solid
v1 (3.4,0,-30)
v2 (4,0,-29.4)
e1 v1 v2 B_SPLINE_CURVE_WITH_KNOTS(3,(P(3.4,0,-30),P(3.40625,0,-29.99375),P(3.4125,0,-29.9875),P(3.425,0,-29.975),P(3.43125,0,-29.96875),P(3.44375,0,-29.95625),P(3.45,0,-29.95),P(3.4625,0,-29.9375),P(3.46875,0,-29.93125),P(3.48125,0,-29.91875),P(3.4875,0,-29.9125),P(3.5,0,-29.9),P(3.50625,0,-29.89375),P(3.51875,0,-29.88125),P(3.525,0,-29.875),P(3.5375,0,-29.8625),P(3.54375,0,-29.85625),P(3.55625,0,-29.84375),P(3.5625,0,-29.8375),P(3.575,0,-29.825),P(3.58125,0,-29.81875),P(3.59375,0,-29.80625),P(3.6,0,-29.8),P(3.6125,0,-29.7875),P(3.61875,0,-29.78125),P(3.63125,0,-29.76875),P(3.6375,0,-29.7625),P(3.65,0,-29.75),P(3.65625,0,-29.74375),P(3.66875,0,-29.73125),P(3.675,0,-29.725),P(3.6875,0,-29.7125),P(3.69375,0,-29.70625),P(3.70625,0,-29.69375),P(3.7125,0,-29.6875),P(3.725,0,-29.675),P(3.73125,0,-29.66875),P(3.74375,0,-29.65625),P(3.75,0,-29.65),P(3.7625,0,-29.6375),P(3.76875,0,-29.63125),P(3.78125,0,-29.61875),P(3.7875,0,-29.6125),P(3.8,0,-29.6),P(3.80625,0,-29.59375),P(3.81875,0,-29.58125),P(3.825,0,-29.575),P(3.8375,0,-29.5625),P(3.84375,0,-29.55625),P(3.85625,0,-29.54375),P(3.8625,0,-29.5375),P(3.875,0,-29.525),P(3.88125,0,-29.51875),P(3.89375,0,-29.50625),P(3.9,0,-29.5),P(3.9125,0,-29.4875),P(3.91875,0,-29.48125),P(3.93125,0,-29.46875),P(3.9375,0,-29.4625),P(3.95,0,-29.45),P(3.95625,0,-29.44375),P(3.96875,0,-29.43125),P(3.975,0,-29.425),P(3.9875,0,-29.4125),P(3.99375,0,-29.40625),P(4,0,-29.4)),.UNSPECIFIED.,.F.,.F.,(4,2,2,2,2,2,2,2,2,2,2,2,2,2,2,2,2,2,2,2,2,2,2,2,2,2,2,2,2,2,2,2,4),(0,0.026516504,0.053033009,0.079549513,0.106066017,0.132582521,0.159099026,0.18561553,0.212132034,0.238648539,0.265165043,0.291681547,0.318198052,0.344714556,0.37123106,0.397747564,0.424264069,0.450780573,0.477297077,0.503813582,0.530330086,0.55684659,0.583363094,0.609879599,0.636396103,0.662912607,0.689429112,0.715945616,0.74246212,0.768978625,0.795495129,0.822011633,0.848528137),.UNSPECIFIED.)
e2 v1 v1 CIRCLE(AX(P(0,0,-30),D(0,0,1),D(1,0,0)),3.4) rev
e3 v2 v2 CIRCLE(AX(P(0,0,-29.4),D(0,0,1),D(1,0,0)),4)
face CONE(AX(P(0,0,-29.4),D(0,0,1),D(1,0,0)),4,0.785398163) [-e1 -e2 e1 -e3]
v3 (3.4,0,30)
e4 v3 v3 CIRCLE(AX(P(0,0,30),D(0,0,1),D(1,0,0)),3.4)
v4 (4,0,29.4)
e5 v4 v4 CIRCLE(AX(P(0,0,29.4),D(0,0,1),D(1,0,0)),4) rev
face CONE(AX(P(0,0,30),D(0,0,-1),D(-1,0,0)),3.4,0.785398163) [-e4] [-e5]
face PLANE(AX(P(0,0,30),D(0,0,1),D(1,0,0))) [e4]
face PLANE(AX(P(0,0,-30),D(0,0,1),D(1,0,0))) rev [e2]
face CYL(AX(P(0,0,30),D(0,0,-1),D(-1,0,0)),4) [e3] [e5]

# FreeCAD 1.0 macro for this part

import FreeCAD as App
import Part
import Sketcher
from FreeCAD import Vector
Q = App.Units.Quantity


def edges_at(feature, points):
    """Names of the edges that pass closest to the given points."""
    edges = feature.Shape.Edges
    near = lambda p: min(range(len(edges)), key=lambda i: edges[i].distToShape(Part.Vertex(*p))[0])
    return sorted({f"Edge{near(p) + 1}" for p in points})

doc = App.newDocument("Part")
params = doc.addObject("Spreadsheet::Sheet", "Params")
for row, (alias, value) in enumerate([
    ("sketch1_diameter", "8 mm"),
    ("pad1_length", "30 mm"),
    ("pad1_length2", "30 mm"),
    ("chamfer_size", "0.6 mm"),
], start=1):
    params.set(f"A{row}", alias)
    params.set(f"B{row}", "=" + value)
    params.setAlias(f"B{row}", alias)

body = doc.addObject("PartDesign::Body", "Body")

sketch1 = body.newObject("Sketcher::SketchObject", "Sketch")
sketch1.AttachmentSupport = (doc.getObject("XY_Plane"), [""])
sketch1.MapMode = "FlatFace"
sketch1.addGeometry(Part.Circle(Vector(0, 0, 0), Vector(0, 0, 1), 4), False)
sketch1.addConstraint(Sketcher.Constraint("Coincident", 0, 3, -1, 1))
sketch1.addConstraint(Sketcher.Constraint("Diameter", 0, Q("8 mm")))
sketch1.setExpression("Constraints[1]", "Params.sketch1_diameter")
pad1 = body.newObject("PartDesign::Pad", "Pad")
pad1.Profile = sketch1
pad1.Type = "TwoLengths"
pad1.setExpression("Length", "Params.pad1_length")
pad1.setExpression("Length2", "Params.pad1_length2")
doc.recompute()

chamfer = body.newObject("PartDesign::Chamfer", "Chamfer")
chamfer.Base = (pad1, edges_at(pad1, [(-4, 0, -30), (-4, 0, 30)]))
chamfer.setExpression("Size", "Params.chamfer_size")

doc.recompute()
